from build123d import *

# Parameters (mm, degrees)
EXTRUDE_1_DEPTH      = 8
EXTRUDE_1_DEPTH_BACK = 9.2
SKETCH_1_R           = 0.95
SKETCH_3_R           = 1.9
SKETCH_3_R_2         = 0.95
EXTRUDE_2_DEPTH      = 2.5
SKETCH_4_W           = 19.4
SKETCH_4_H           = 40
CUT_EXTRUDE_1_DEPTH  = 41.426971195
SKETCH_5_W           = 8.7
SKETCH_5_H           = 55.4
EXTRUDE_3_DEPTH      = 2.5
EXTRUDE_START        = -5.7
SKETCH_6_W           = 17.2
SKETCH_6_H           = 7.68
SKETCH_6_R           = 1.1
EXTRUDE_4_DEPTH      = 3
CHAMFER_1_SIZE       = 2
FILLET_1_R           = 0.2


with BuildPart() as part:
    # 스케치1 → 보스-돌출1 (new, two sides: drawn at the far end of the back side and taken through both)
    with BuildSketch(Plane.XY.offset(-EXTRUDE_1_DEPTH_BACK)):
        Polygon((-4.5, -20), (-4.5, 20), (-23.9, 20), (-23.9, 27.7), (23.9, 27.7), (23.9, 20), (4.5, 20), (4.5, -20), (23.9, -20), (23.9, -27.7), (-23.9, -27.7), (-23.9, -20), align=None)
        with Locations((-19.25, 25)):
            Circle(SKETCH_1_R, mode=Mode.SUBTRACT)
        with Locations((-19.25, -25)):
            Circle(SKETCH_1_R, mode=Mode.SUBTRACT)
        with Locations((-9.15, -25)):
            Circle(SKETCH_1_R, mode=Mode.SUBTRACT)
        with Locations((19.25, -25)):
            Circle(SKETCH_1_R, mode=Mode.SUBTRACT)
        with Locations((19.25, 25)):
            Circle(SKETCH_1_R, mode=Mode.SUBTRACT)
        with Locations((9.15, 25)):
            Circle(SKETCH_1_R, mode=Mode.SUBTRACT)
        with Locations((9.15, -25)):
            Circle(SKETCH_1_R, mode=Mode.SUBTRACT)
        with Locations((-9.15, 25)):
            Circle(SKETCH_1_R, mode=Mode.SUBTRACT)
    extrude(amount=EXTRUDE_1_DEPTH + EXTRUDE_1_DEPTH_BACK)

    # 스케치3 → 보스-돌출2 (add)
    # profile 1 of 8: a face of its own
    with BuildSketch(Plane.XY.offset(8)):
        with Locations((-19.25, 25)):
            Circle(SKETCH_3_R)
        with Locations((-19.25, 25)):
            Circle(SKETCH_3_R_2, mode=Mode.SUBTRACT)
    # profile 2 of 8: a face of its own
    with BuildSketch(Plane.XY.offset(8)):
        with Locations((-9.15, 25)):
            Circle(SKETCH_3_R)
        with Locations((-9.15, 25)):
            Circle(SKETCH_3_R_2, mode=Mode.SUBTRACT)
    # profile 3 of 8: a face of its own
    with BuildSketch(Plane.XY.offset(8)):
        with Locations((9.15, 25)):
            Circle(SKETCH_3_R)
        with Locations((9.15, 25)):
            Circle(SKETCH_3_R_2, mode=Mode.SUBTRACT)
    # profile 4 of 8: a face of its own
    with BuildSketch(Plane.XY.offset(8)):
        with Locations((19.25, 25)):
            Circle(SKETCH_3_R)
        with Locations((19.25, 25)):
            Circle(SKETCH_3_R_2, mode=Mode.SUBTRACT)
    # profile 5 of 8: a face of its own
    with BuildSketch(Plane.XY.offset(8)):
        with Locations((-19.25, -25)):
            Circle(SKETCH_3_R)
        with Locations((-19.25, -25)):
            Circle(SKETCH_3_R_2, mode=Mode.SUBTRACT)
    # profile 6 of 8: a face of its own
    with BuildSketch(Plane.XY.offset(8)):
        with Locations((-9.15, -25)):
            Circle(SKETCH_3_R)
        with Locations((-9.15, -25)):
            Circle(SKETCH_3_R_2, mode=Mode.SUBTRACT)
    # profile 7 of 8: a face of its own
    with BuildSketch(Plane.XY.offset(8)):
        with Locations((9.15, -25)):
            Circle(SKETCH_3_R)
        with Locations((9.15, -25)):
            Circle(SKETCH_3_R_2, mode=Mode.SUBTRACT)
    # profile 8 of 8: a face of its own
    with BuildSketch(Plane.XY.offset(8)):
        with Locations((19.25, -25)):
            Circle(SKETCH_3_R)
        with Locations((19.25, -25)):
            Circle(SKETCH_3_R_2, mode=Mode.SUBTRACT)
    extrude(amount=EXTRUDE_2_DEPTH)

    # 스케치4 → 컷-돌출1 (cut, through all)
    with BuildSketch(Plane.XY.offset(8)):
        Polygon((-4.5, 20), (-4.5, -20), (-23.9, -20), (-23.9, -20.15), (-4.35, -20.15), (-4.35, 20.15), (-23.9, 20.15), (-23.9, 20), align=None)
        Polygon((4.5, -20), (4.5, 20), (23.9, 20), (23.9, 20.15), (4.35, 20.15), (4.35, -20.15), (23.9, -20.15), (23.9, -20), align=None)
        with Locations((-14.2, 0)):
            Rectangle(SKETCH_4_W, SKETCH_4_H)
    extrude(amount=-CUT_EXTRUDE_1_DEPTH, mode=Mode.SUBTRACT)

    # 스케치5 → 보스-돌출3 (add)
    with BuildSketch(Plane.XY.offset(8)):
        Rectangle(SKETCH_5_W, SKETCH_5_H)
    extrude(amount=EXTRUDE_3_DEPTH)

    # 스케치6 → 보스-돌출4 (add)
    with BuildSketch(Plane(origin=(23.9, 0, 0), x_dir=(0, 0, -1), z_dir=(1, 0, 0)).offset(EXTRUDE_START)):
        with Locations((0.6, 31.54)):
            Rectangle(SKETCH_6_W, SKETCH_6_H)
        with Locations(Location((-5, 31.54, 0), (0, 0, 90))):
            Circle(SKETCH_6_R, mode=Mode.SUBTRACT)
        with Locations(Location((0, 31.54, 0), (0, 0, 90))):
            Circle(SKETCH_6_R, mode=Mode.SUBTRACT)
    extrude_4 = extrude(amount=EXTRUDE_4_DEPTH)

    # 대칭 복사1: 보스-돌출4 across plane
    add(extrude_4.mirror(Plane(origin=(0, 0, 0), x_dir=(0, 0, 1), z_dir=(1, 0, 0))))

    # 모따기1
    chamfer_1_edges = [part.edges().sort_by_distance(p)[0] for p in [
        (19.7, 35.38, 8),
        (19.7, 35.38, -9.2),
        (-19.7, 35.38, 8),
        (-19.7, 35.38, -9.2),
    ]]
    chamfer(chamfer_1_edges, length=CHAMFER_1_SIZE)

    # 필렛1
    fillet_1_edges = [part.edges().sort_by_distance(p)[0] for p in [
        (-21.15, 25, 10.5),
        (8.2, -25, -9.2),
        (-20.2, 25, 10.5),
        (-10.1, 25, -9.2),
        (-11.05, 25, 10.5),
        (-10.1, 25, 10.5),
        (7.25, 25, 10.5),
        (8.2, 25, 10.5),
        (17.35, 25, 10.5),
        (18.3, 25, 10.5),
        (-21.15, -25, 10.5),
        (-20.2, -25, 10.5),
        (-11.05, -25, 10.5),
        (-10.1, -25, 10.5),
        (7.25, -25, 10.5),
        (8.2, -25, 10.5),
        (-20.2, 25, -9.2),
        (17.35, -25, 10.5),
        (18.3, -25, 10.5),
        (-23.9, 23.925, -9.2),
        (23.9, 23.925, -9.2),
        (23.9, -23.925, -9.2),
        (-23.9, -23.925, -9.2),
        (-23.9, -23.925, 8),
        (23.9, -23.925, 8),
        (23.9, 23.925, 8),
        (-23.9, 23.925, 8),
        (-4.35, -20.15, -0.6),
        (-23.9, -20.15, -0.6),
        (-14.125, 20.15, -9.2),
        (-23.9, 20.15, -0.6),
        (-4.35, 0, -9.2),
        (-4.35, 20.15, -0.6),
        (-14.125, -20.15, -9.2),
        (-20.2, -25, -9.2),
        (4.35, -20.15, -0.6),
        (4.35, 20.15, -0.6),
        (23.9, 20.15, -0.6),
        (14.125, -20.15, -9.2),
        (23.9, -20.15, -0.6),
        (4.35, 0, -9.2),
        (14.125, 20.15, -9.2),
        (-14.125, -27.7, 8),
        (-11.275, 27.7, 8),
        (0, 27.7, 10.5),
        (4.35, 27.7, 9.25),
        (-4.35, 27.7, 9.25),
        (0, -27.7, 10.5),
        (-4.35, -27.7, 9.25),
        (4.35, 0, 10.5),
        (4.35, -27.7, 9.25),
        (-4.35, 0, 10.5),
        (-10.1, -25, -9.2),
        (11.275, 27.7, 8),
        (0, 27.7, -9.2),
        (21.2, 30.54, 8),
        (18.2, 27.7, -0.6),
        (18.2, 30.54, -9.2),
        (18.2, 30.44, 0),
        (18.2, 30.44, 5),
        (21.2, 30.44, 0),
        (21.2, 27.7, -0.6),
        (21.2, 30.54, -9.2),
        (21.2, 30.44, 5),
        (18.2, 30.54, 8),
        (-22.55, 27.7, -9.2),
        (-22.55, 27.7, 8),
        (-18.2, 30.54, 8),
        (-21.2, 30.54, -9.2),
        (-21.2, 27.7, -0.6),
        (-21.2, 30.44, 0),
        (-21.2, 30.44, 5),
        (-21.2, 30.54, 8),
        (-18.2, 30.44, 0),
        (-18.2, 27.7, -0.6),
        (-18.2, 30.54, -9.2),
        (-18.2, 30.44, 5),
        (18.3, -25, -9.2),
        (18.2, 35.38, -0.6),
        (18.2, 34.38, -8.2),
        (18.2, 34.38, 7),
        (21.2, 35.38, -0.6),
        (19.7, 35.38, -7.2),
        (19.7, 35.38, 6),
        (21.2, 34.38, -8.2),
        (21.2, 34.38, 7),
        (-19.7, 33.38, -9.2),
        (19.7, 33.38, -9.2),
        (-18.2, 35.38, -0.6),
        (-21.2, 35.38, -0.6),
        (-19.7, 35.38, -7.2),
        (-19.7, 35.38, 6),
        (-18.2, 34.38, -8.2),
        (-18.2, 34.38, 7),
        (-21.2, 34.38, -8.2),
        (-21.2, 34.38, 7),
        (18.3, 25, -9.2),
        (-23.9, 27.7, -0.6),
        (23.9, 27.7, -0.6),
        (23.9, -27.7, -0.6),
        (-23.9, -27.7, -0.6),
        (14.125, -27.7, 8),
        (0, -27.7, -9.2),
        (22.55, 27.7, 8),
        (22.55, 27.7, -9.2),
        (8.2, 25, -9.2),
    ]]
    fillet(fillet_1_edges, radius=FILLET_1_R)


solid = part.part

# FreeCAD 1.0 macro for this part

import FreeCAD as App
import Part
import Sketcher

V = App.Vector


def edges_at(feature, points):
    """Names of the edges that pass closest to the given points."""
    edges = feature.Shape.Edges
    near = lambda p: min(range(len(edges)), key=lambda i: edges[i].distToShape(Part.Vertex(*p))[0])
    return sorted({f"Edge{near(p) + 1}" for p in points})

doc = App.newDocument("Part")
body = doc.addObject("PartDesign::Body", "Body")

# Sketch on XY plane
sketch1 = body.newObject("Sketcher::SketchObject", "Sketch")
sketch1.AttachmentSupport = (doc.getObject("XY_Plane"), [""])
sketch1.MapMode = "FlatFace"
sketch1.addGeometry([
    Part.LineSegment(V(-4.5, 20, 0), V(-4.5, -20, 0)),  # 0
    Part.LineSegment(V(-4.5, -20, 0), V(-23.9, -20, 0)),  # 1
    Part.LineSegment(V(-23.9, -20, 0), V(-23.9, -27.7, 0)),  # 2
    Part.LineSegment(V(-23.9, -27.7, 0), V(23.9, -27.7, 0)),  # 3
    Part.LineSegment(V(23.9, -27.7, 0), V(23.9, -20, 0)),  # 4
    Part.LineSegment(V(23.9, -20, 0), V(4.5, -20, 0)),  # 5
    Part.LineSegment(V(4.5, -20, 0), V(4.5, 20, 0)),  # 6
    Part.LineSegment(V(4.5, 20, 0), V(23.9, 20, 0)),  # 7
    Part.LineSegment(V(23.9, 20, 0), V(23.9, 27.7, 0)),  # 8
    Part.LineSegment(V(23.9, 27.7, 0), V(-23.9, 27.7, 0)),  # 9
    Part.LineSegment(V(-23.9, 27.7, 0), V(-23.9, 20, 0)),  # 10
    Part.LineSegment(V(-23.9, 20, 0), V(-4.5, 20, 0)),  # 11
    Part.Circle(V(19.2, -25, 0), V(0, 0, 1), 0.9),  # 12
    Part.Circle(V(9.2, -25, 0), V(0, 0, 1), 0.9),  # 13
    Part.Circle(V(-9.2, -25, 0), V(0, 0, 1), 0.9),  # 14
    Part.Circle(V(-19.2, -25, 0), V(0, 0, 1), 0.9),  # 15
    Part.Circle(V(19.2, 25, 0), V(0, 0, 1), 0.9),  # 16
    Part.Circle(V(9.2, 25, 0), V(0, 0, 1), 0.9),  # 17
    Part.Circle(V(-9.2, 25, 0), V(0, 0, 1), 0.9),  # 18
    Part.Circle(V(-19.2, 25, 0), V(0, 0, 1), 0.9),  # 19
], False)
sketch1.addConstraint([
    Sketcher.Constraint("Coincident", 0, 2, 1, 1),
    Sketcher.Constraint("Coincident", 1, 2, 2, 1),
    Sketcher.Constraint("Coincident", 2, 2, 3, 1),
    Sketcher.Constraint("Coincident", 3, 2, 4, 1),
    Sketcher.Constraint("Coincident", 4, 2, 5, 1),
    Sketcher.Constraint("Coincident", 5, 2, 6, 1),
    Sketcher.Constraint("Coincident", 6, 2, 7, 1),
    Sketcher.Constraint("Coincident", 7, 2, 8, 1),
    Sketcher.Constraint("Coincident", 8, 2, 9, 1),
    Sketcher.Constraint("Coincident", 9, 2, 10, 1),
    Sketcher.Constraint("Coincident", 10, 2, 11, 1),
    Sketcher.Constraint("Coincident", 11, 2, 0, 1),
    Sketcher.Constraint("Vertical", 0),
    Sketcher.Constraint("Horizontal", 1),
    Sketcher.Constraint("Vertical", 2),
    Sketcher.Constraint("Horizontal", 3),
    Sketcher.Constraint("Vertical", 4),
    Sketcher.Constraint("Horizontal", 5),
    Sketcher.Constraint("Vertical", 6),
    Sketcher.Constraint("Horizontal", 7),
    Sketcher.Constraint("Vertical", 8),
    Sketcher.Constraint("Horizontal", 9),
    Sketcher.Constraint("Vertical", 10),
    Sketcher.Constraint("Horizontal", 11),
    Sketcher.Constraint("Equal", 12, 13),
    Sketcher.Constraint("Equal", 13, 14),
    Sketcher.Constraint("Equal", 14, 15),
    Sketcher.Constraint("Equal", 15, 16),
    Sketcher.Constraint("Equal", 16, 17),
    Sketcher.Constraint("Equal", 17, 18),
    Sketcher.Constraint("Equal", 18, 19),
    Sketcher.Constraint("Symmetric", 15, 3, 16, 3, -1, 1),
    Sketcher.Constraint("Symmetric", 14, 3, 17, 3, -1, 1),
    Sketcher.Constraint("Symmetric", 13, 3, 18, 3, -1, 1),
    Sketcher.Constraint("Symmetric", 12, 3, 19, 3, -1, 1),
    Sketcher.Constraint("Symmetric", 0, 2, 6, 2, -1, 1),
    Sketcher.Constraint("Symmetric", 2, 2, 8, 2, -1, 1),
    Sketcher.Constraint("Symmetric", 4, 2, 10, 2, -1, 1),
    Sketcher.Constraint("Symmetric", 13, 3, 14, 3, -2),
    Sketcher.Constraint("Symmetric", 12, 3, 15, 3, -2),
    Sketcher.Constraint("Symmetric", 1, 2, 4, 2, -2),
    Sketcher.Constraint("Horizontal", 12, 3, 13, 3),
    Sketcher.Constraint("Diameter", 12, 1.9),
    Sketcher.Constraint("DistanceY", 0, 2, 0, 1, 40.0),
    Sketcher.Constraint("DistanceX", 1, 2, 1, 1, 19.4),
    Sketcher.Constraint("DistanceX", 3, 1, 3, 2, 47.8),
    Sketcher.Constraint("DistanceY", 2, 2, 2, 1, 7.7),
    Sketcher.Constraint("DistanceY", 12, 3, -1, 1, 25.0),
    Sketcher.Constraint("DistanceX", 13, 3, 12, 3, 10.1),
    Sketcher.Constraint("DistanceX", 14, 3, 13, 3, 18.3),
])
pad1 = body.newObject("PartDesign::Pad", "Pad")
pad1.Profile = sketch1
pad1.Type = "TwoLengths"
pad1.Length = 8
pad1.Length2 = 9.2

# Sketch on XY plane
sketch2 = body.newObject("Sketcher::SketchObject", "Sketch001")
sketch2.AttachmentSupport = (doc.getObject("XY_Plane"), [""])
sketch2.MapMode = "FlatFace"
sketch2.AttachmentOffset = App.Placement(V(0, 0, 8), App.Rotation())
sketch2.addGeometry([
    Part.Circle(V(-19.2, 25, 0), V(0, 0, 1), 1.9),  # 0
    Part.Circle(V(-19.2, 25, 0), V(0, 0, 1), 0.9),  # 1
    Part.Circle(V(-9.2, 25, 0), V(0, 0, 1), 1.9),  # 2
    Part.Circle(V(-9.2, 25, 0), V(0, 0, 1), 0.9),  # 3
    Part.Circle(V(9.2, 25, 0), V(0, 0, 1), 1.9),  # 4
    Part.Circle(V(9.2, 25, 0), V(0, 0, 1), 0.9),  # 5
    Part.Circle(V(19.2, 25, 0), V(0, 0, 1), 1.9),  # 6
    Part.Circle(V(19.2, 25, 0), V(0, 0, 1), 0.9),  # 7
    Part.Circle(V(-19.2, -25, 0), V(0, 0, 1), 1.9),  # 8
    Part.Circle(V(-19.2, -25, 0), V(0, 0, 1), 0.9),  # 9
    Part.Circle(V(-9.2, -25, 0), V(0, 0, 1), 1.9),  # 10
    Part.Circle(V(-9.2, -25, 0), V(0, 0, 1), 0.9),  # 11
    Part.Circle(V(9.2, -25, 0), V(0, 0, 1), 1.9),  # 12
    Part.Circle(V(9.2, -25, 0), V(0, 0, 1), 0.9),  # 13
    Part.Circle(V(19.2, -25, 0), V(0, 0, 1), 1.9),  # 14
    Part.Circle(V(19.2, -25, 0), V(0, 0, 1), 0.9),  # 15
], False)
sketch2.addConstraint([
    Sketcher.Constraint("Coincident", 1, 3, 0, 3),
    Sketcher.Constraint("Coincident", 3, 3, 2, 3),
    Sketcher.Constraint("Coincident", 5, 3, 4, 3),
    Sketcher.Constraint("Coincident", 7, 3, 6, 3),
    Sketcher.Constraint("Coincident", 9, 3, 8, 3),
    Sketcher.Constraint("Coincident", 11, 3, 10, 3),
    Sketcher.Constraint("Coincident", 13, 3, 12, 3),
    Sketcher.Constraint("Coincident", 15, 3, 14, 3),
    Sketcher.Constraint("Equal", 0, 2),
    Sketcher.Constraint("Equal", 1, 3),
    Sketcher.Constraint("Equal", 2, 4),
    Sketcher.Constraint("Equal", 3, 5),
    Sketcher.Constraint("Equal", 4, 6),
    Sketcher.Constraint("Equal", 5, 7),
    Sketcher.Constraint("Equal", 6, 8),
    Sketcher.Constraint("Equal", 7, 9),
    Sketcher.Constraint("Equal", 8, 10),
    Sketcher.Constraint("Equal", 9, 11),
    Sketcher.Constraint("Equal", 10, 12),
    Sketcher.Constraint("Equal", 11, 13),
    Sketcher.Constraint("Equal", 12, 14),
    Sketcher.Constraint("Equal", 13, 15),
    Sketcher.Constraint("Symmetric", 6, 3, 8, 3, -1, 1),
    Sketcher.Constraint("Symmetric", 4, 3, 10, 3, -1, 1),
    Sketcher.Constraint("Symmetric", 2, 3, 12, 3, -1, 1),
    Sketcher.Constraint("Symmetric", 0, 3, 14, 3, -1, 1),
    Sketcher.Constraint("Symmetric", 2, 3, 4, 3, -2),
    Sketcher.Constraint("Symmetric", 0, 3, 6, 3, -2),
    Sketcher.Constraint("Horizontal", 1, 3, 2, 3),
    Sketcher.Constraint("Diameter", 0, 3.8),
    Sketcher.Constraint("Diameter", 1, 1.9),
    Sketcher.Constraint("DistanceY", -1, 1, 0, 3, 25.0),
    Sketcher.Constraint("DistanceX", 0, 3, 2, 3, 10.1),
    Sketcher.Constraint("DistanceX", 2, 3, 4, 3, 18.3),
])
pad2 = body.newObject("PartDesign::Pad", "Pad001")
pad2.Profile = sketch2
pad2.Length = 2.5

# Sketch on XY plane
sketch3 = body.newObject("Sketcher::SketchObject", "Sketch002")
sketch3.AttachmentSupport = (doc.getObject("XY_Plane"), [""])
sketch3.MapMode = "FlatFace"
sketch3.AttachmentOffset = App.Placement(V(0, 0, 8), App.Rotation())
sketch3.addGeometry([
    Part.LineSegment(V(-23.9, -20.15, 0), V(-4.35, -20.15, 0)),  # 0
    Part.LineSegment(V(-4.35, -20.15, 0), V(-4.35, 20.15, 0)),  # 1
    Part.LineSegment(V(-4.35, 20.15, 0), V(-23.9, 20.15, 0)),  # 2
    Part.LineSegment(V(-23.9, 20.15, 0), V(-23.9, -20.15, 0)),  # 3
    Part.LineSegment(V(4.5, -20, 0), V(4.5, 20, 0)),  # 4
    Part.LineSegment(V(4.5, 20, 0), V(23.9, 20, 0)),  # 5
    Part.LineSegment(V(23.9, 20, 0), V(23.9, 20.15, 0)),  # 6
    Part.LineSegment(V(23.9, 20.15, 0), V(4.35, 20.15, 0)),  # 7
    Part.LineSegment(V(4.35, 20.15, 0), V(4.35, -20.15, 0)),  # 8
    Part.LineSegment(V(4.35, -20.15, 0), V(23.9, -20.15, 0)),  # 9
    Part.LineSegment(V(23.9, -20.15, 0), V(23.9, -20, 0)),  # 10
    Part.LineSegment(V(23.9, -20, 0), V(4.5, -20, 0)),  # 11
], False)
sketch3.addConstraint([
    Sketcher.Constraint("Coincident", 0, 2, 1, 1),
    Sketcher.Constraint("Coincident", 1, 2, 2, 1),
    Sketcher.Constraint("Coincident", 2, 2, 3, 1),
    Sketcher.Constraint("Coincident", 3, 2, 0, 1),
    Sketcher.Constraint("Coincident", 4, 2, 5, 1),
    Sketcher.Constraint("Coincident", 5, 2, 6, 1),
    Sketcher.Constraint("Coincident", 6, 2, 7, 1),
    Sketcher.Constraint("Coincident", 7, 2, 8, 1),
    Sketcher.Constraint("Coincident", 8, 2, 9, 1),
    Sketcher.Constraint("Coincident", 9, 2, 10, 1),
    Sketcher.Constraint("Coincident", 10, 2, 11, 1),
    Sketcher.Constraint("Coincident", 11, 2, 4, 1),
    Sketcher.Constraint("Horizontal", 0),
    Sketcher.Constraint("Vertical", 1),
    Sketcher.Constraint("Horizontal", 2),
    Sketcher.Constraint("Vertical", 3),
    Sketcher.Constraint("Vertical", 4),
    Sketcher.Constraint("Horizontal", 5),
    Sketcher.Constraint("Vertical", 6),
    Sketcher.Constraint("Horizontal", 7),
    Sketcher.Constraint("Vertical", 8),
    Sketcher.Constraint("Horizontal", 9),
    Sketcher.Constraint("Vertical", 10),
    Sketcher.Constraint("Horizontal", 11),
    Sketcher.Constraint("Symmetric", 3, 2, 6, 2, -1, 1),
    Sketcher.Constraint("Symmetric", 1, 2, 8, 2, -1, 1),
    Sketcher.Constraint("Symmetric", 3, 2, 9, 2, -2),
    Sketcher.Constraint("Equal", 6, 10),
    Sketcher.Constraint("DistanceY", 4, 1, 4, 2, 40.0),
    Sketcher.Constraint("DistanceX", 5, 1, 5, 2, 19.4),
    Sketcher.Constraint("DistanceY", 1, 1, 1, 2, 40.3),
    Sketcher.Constraint("DistanceX", 0, 1, 0, 2, 19.55),
    Sketcher.Constraint("DistanceX", 2, 2, -1, 1, 23.9),
])
pocket1 = body.newObject("PartDesign::Pocket", "Pocket")
pocket1.Profile = sketch3
pocket1.Type = "ThroughAll"

# Sketch on XY plane
sketch4 = body.newObject("Sketcher::SketchObject", "Sketch003")
sketch4.AttachmentSupport = (doc.getObject("XY_Plane"), [""])
sketch4.MapMode = "FlatFace"
sketch4.AttachmentOffset = App.Placement(V(0, 0, 8), App.Rotation())
sketch4.addGeometry([
    Part.LineSegment(V(-4, 28, 0), V(-4, -28, 0)),
    Part.LineSegment(V(-4, -28, 0), V(4, -28, 0)),
    Part.LineSegment(V(4, -28, 0), V(4, 28, 0)),
    Part.LineSegment(V(4, 28, 0), V(-4, 28, 0)),
], False)
sketch4.addConstraint([
    Sketcher.Constraint("Coincident", 0, 2, 1, 1),
    Sketcher.Constraint("Coincident", 1, 2, 2, 1),
    Sketcher.Constraint("Coincident", 2, 2, 3, 1),
    Sketcher.Constraint("Coincident", 3, 2, 0, 1),
    Sketcher.Constraint("Vertical", 0),
    Sketcher.Constraint("Horizontal", 1),
    Sketcher.Constraint("Vertical", 2),
    Sketcher.Constraint("Horizontal", 3),
    Sketcher.Constraint("Symmetric", 0, 2, 2, 2, -1, 1),
    Sketcher.Constraint("DistanceX", 1, 1, 1, 2, 8.7),
    Sketcher.Constraint("DistanceY", 0, 2, 0, 1, 55.4),
])
pad3 = body.newObject("PartDesign::Pad", "Pad002")
pad3.Profile = sketch4
pad3.Length = 2.5

# Sketch on YZ plane
sketch5 = body.newObject("Sketcher::SketchObject", "Sketch004")
sketch5.AttachmentSupport = (doc.getObject("YZ_Plane"), [""])
sketch5.MapMode = "FlatFace"
sketch5.AttachmentOffset = App.Placement(V(0, 0, 18.2), App.Rotation())
sketch5.addGeometry([
    Part.LineSegment(V(35.4, 8, 0), V(27.7, 8, 0)),  # 0
    Part.LineSegment(V(27.7, 8, 0), V(27.7, -9.2, 0)),  # 1
    Part.LineSegment(V(27.7, -9.2, 0), V(35.4, -9.2, 0)),  # 2
    Part.LineSegment(V(35.4, -9.2, 0), V(35.4, 8, 0)),  # 3
    Part.Circle(V(31.5, 5, 0), V(0, 0, 1), 1.1),  # 4
    Part.Circle(V(31.5, 0, 0), V(0, 0, 1), 1.1),  # 5
], False)
sketch5.addConstraint([
    Sketcher.Constraint("Coincident", 0, 2, 1, 1),
    Sketcher.Constraint("Coincident", 1, 2, 2, 1),
    Sketcher.Constraint("Coincident", 2, 2, 3, 1),
    Sketcher.Constraint("Coincident", 3, 2, 0, 1),
    Sketcher.Constraint("Horizontal", 0),
    Sketcher.Constraint("Vertical", 1),
    Sketcher.Constraint("Horizontal", 2),
    Sketcher.Constraint("Vertical", 3),
    Sketcher.Constraint("Equal", 4, 5),
    Sketcher.Constraint("PointOnObject", 5, 3, -1),
    Sketcher.Constraint("Vertical", 4, 3, 5, 3),
    Sketcher.Constraint("Diameter", 4, 2.2),
    Sketcher.Constraint("DistanceY", 1, 2, 1, 1, 17.2),
    Sketcher.Constraint("DistanceY", -1, 1, 4, 3, 5.0),
    Sketcher.Constraint("DistanceY", -1, 1, 0, 2, 8.0),
    Sketcher.Constraint("DistanceX", 0, 2, 0, 1, 7.68),
    Sketcher.Constraint("DistanceX", -1, 1, 0, 2, 27.7),
    Sketcher.Constraint("DistanceX", -1, 1, 4, 3, 31.54),
])
pad4 = body.newObject("PartDesign::Pad", "Pad003")
pad4.Profile = sketch5
pad4.Length = 3
doc.recompute()

mirrored = body.newObject("PartDesign::Mirrored", "Mirrored")
mirrored.Originals = [pad4]
mirrored.MirrorPlane = (doc.getObject("YZ_Plane"), [""])
body.Tip = mirrored
doc.recompute()

chamfer = body.newObject("PartDesign::Chamfer", "Chamfer")
chamfer.Base = (mirrored, edges_at(mirrored, [
    (19.7, 35.38, 8),
    (19.7, 35.38, -9.2),
    (-19.7, 35.38, 8),
    (-19.7, 35.38, -9.2),
]))
chamfer.Size = 2
doc.recompute()

fillet = body.newObject("PartDesign::Fillet", "Fillet")
fillet.Base = (chamfer, edges_at(chamfer, [
    (-21.15, 25, 10.5),
    (8.2, -25, -9.2),
    (-20.2, 25, 10.5),
    (-10.1, 25, -9.2),
    (-11.05, 25, 10.5),
    (-10.1, 25, 10.5),
    (7.25, 25, 10.5),
    (8.2, 25, 10.5),
    (17.35, 25, 10.5),
    (18.3, 25, 10.5),
    (-21.15, -25, 10.5),
    (-20.2, -25, 10.5),
    (-11.05, -25, 10.5),
    (-10.1, -25, 10.5),
    (7.25, -25, 10.5),
    (8.2, -25, 10.5),
    (-20.2, 25, -9.2),
    (17.35, -25, 10.5),
    (18.3, -25, 10.5),
    (-23.9, 23.925, -9.2),
    (23.9, 23.925, -9.2),
    (23.9, -23.925, -9.2),
    (-23.9, -23.925, -9.2),
    (-23.9, -23.925, 8),
    (23.9, -23.925, 8),
    (23.9, 23.925, 8),
    (-23.9, 23.925, 8),
    (-4.35, -20.15, -0.6),
    (-23.9, -20.15, -0.6),
    (-14.125, 20.15, -9.2),
    (-23.9, 20.15, -0.6),
    (-4.35, 0, -9.2),
    (-4.35, 20.15, -0.6),
    (-14.125, -20.15, -9.2),
    (-20.2, -25, -9.2),
    (4.35, -20.15, -0.6),
    (4.35, 20.15, -0.6),
    (23.9, 20.15, -0.6),
    (14.125, -20.15, -9.2),
    (23.9, -20.15, -0.6),
    (4.35, 0, -9.2),
    (14.125, 20.15, -9.2),
    (-14.125, -27.7, 8),
    (-11.275, 27.7, 8),
    (0, 27.7, 10.5),
    (4.35, 27.7, 9.25),
    (-4.35, 27.7, 9.25),
    (0, -27.7, 10.5),
    (-4.35, -27.7, 9.25),
    (4.35, 0, 10.5),
    (4.35, -27.7, 9.25),
    (-4.35, 0, 10.5),
    (-10.1, -25, -9.2),
    (11.275, 27.7, 8),
    (0, 27.7, -9.2),
    (21.2, 30.54, 8),
    (18.2, 27.7, -0.6),
    (18.2, 30.54, -9.2),
    (18.2, 30.44, 0),
    (18.2, 30.44, 5),
    (21.2, 30.44, 0),
    (21.2, 27.7, -0.6),
    (21.2, 30.54, -9.2),
    (21.2, 30.44, 5),
    (18.2, 30.54, 8),
    (-22.55, 27.7, -9.2),
    (-22.55, 27.7, 8),
    (-18.2, 30.54, 8),
    (-21.2, 30.54, -9.2),
    (-21.2, 27.7, -0.6),
    (-21.2, 30.44, 0),
    (-21.2, 30.44, 5),
    (-21.2, 30.54, 8),
    (-18.2, 30.44, 0),
    (-18.2, 27.7, -0.6),
    (-18.2, 30.54, -9.2),
    (-18.2, 30.44, 5),
    (18.3, -25, -9.2),
    (18.2, 35.38, -0.6),
    (18.2, 34.38, -8.2),
    (18.2, 34.38, 7),
    (21.2, 35.38, -0.6),
    (19.7, 35.38, -7.2),
    (19.7, 35.38, 6),
    (21.2, 34.38, -8.2),
    (21.2, 34.38, 7),
    (-19.7, 33.38, -9.2),
    (19.7, 33.38, -9.2),
    (-18.2, 35.38, -0.6),
    (-21.2, 35.38, -0.6),
    (-19.7, 35.38, -7.2),
    (-19.7, 35.38, 6),
    (-18.2, 34.38, -8.2),
    (-18.2, 34.38, 7),
    (-21.2, 34.38, -8.2),
    (-21.2, 34.38, 7),
    (18.3, 25, -9.2),
    (-23.9, 27.7, -0.6),
    (23.9, 27.7, -0.6),
    (23.9, -27.7, -0.6),
    (-23.9, -27.7, -0.6),
    (14.125, -27.7, 8),
    (0, -27.7, -9.2),
    (22.55, 27.7, 8),
    (22.55, 27.7, -9.2),
    (8.2, 25, -9.2),
]))
fillet.Radius = 0.2

doc.recompute()
